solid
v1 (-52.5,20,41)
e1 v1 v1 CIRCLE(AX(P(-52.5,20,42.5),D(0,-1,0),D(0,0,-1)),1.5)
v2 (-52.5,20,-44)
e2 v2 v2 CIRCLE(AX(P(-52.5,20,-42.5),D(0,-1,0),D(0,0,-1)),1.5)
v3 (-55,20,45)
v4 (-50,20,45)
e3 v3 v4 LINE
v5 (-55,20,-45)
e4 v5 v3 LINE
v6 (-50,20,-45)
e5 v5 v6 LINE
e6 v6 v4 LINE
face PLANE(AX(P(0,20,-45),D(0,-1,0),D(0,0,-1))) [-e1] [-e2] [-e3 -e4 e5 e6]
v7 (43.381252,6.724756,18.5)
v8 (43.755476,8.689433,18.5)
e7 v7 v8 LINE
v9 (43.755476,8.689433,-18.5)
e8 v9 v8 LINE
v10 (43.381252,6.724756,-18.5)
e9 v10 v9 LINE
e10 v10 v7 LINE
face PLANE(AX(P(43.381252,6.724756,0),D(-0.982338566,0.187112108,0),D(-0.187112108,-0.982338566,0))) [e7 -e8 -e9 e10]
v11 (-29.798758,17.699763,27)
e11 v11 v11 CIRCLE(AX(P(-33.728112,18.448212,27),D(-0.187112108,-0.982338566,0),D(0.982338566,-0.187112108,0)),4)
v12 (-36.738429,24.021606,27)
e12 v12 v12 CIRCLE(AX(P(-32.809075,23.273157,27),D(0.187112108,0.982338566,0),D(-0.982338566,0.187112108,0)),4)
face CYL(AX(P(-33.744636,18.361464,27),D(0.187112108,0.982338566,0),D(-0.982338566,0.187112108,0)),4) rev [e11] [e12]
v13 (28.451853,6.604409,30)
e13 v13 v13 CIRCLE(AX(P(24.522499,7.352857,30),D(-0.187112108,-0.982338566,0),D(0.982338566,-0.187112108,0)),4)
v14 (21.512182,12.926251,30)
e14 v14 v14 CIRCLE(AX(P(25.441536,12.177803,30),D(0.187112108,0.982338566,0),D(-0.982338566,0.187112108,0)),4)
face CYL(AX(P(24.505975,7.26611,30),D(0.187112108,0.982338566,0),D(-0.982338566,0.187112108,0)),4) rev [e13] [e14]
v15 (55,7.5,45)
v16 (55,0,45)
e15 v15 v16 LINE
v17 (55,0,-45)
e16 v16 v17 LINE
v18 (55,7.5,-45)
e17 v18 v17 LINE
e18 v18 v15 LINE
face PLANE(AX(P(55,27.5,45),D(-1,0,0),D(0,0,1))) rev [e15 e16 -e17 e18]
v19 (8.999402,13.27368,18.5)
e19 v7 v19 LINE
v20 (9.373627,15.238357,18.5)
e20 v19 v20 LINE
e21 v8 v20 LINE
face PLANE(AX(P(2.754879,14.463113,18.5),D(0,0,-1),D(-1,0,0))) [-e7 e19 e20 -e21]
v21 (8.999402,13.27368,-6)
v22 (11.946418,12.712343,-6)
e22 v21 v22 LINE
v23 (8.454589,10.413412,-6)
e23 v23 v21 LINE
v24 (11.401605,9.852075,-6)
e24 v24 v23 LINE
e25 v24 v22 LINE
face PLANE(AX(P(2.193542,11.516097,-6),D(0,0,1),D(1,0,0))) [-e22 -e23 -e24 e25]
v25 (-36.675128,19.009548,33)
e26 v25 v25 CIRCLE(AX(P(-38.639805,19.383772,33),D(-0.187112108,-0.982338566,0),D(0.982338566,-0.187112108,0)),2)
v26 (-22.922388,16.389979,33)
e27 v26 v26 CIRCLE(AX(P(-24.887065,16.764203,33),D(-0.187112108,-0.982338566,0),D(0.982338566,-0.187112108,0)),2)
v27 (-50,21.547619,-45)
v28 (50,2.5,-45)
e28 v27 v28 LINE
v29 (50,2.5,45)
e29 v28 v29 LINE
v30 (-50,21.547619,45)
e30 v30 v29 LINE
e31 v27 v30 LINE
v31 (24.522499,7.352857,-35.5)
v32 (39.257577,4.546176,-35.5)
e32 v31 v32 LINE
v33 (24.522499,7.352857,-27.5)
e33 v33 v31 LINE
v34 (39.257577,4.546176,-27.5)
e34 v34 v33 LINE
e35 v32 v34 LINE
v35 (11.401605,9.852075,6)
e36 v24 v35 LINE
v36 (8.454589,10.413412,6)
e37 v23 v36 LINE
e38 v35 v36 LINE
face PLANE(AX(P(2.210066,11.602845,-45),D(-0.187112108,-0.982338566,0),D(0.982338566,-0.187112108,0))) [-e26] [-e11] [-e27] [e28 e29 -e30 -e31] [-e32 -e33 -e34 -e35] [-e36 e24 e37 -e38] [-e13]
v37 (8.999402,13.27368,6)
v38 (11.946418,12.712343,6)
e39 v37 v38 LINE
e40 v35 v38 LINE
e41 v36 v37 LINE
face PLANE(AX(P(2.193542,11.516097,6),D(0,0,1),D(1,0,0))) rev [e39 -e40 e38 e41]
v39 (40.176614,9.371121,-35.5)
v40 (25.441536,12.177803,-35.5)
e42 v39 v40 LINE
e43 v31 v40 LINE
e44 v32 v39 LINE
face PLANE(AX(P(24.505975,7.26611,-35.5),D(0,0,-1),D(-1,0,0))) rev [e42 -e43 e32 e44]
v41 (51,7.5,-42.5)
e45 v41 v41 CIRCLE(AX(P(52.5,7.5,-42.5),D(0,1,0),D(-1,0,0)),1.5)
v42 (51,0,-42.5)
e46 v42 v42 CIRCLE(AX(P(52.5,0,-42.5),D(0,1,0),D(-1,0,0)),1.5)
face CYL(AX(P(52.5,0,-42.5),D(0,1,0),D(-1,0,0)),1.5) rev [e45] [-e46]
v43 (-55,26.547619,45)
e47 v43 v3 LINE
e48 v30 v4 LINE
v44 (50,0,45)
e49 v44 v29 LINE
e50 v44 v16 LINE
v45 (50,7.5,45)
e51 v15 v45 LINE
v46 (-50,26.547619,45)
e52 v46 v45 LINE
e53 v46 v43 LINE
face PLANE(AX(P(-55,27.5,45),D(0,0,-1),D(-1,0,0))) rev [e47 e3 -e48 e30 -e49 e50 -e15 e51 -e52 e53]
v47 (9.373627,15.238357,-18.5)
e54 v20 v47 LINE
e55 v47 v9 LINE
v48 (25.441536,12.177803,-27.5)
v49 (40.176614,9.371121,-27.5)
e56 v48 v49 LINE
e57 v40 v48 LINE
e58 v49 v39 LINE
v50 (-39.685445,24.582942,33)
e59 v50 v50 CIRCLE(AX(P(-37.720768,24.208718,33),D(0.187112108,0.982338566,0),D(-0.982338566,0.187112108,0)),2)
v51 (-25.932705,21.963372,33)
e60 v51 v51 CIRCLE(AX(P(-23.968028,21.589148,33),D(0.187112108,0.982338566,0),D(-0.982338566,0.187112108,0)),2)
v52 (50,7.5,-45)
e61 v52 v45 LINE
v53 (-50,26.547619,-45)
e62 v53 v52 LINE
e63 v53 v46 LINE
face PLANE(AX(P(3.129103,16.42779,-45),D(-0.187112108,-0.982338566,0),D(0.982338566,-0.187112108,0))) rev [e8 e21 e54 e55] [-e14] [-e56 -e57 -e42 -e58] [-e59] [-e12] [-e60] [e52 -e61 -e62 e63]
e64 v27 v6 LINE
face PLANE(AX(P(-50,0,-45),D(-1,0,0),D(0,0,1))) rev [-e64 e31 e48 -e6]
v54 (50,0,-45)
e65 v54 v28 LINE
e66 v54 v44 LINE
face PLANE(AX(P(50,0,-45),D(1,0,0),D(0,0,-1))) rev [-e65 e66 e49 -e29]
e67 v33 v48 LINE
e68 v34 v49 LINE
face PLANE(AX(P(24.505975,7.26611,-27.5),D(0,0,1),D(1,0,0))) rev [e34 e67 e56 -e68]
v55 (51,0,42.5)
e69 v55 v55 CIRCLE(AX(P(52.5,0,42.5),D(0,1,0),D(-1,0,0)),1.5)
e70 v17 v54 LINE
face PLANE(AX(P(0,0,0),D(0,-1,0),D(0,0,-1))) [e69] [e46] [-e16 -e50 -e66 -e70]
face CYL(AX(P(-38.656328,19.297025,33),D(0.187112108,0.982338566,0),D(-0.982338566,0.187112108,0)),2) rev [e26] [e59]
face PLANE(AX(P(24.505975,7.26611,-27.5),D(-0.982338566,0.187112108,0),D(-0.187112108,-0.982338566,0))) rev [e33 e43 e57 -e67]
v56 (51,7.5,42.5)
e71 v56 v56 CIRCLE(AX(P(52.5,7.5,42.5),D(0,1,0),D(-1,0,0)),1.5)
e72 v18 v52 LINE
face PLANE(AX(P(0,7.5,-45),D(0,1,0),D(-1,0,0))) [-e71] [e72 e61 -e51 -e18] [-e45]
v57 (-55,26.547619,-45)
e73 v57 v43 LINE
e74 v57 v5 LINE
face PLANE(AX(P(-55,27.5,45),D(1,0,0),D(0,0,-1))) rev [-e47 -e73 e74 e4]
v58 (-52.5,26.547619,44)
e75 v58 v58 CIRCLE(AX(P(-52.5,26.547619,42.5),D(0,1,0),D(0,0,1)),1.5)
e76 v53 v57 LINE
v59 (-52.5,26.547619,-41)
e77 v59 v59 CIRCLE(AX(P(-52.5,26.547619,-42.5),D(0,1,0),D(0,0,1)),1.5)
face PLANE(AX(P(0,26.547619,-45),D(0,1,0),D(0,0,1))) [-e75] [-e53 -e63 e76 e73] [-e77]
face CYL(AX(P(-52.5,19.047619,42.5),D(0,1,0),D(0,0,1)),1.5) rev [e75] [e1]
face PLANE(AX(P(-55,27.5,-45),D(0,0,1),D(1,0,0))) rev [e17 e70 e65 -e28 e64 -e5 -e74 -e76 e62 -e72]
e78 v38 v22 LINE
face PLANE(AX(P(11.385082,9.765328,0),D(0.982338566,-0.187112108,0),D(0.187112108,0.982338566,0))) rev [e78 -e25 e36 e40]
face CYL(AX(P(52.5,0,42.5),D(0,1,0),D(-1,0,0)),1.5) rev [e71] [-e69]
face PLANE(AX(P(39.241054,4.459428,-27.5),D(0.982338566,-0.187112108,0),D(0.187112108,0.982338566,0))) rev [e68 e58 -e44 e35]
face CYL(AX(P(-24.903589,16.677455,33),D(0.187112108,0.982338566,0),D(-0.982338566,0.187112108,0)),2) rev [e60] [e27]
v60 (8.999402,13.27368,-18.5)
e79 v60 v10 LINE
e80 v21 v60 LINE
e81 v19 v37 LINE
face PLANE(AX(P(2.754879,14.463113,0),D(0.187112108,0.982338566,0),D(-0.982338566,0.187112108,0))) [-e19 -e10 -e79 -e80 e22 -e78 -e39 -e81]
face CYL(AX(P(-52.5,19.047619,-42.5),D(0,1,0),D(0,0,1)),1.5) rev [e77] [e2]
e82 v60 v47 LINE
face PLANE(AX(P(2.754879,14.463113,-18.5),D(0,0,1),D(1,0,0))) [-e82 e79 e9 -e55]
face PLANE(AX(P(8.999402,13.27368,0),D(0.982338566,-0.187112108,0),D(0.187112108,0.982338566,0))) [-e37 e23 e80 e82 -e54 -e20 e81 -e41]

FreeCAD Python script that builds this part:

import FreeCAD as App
import Part
import Sketcher


def add_polygon(sketch, points):
    """Adds a closed chain of lines whose ends are joined by coincident constraints."""
    first, n = sketch.GeometryCount, len(points)
    for a, b in zip(points, points[1:] + points[:1]):
        sketch.addGeometry(Part.LineSegment(App.Vector(*a, 0), App.Vector(*b, 0)), False)
    for i in range(n):
        sketch.addConstraint(Sketcher.Constraint("Coincident", first + i, 2, first + (i + 1) % n, 1))

doc = App.newDocument("Part")
params = doc.addObject("Spreadsheet::Sheet", "Params")
for row, (alias, value) in enumerate([
    ("sketch1_width", "110 mm"),
    ("sketch1_height", "90 mm"),
    ("pad1_length", "27.5 mm"),
    ("sketch2_width", "5 mm"),
    ("sketch2_width2", "105 mm"),
    ("sketch2_height", "20 mm"),
    ("sketch2_height2", "2.5 mm"),
    ("pocket1_length", "90 mm"),
    ("sketch3_diameter", "3 mm"),
    ("pocket2_length", "7.5 mm"),
    ("sketch4_diameter", "3 mm"),
    ("pocket3_length", "7.5 mm"),
    ("sketch5_diameter", "3 mm"),
    ("pocket4_length", "7.5 mm"),
    ("sketch6_diameter", "3 mm"),
    ("pocket5_length", "7.5 mm"),
    ("sketch7_width", "3 mm"),
    ("sketch7_width2", "35 mm"),
    ("sketch7_height", "37 mm"),
    ("sketch7_height2", "12 mm"),
    ("pocket6_length", "2 mm"),
    ("sketch8_width", "3 mm"),
    ("sketch8_height", "12 mm"),
    ("pocket7_length", "5 mm"),
    ("sketch9_diameter", "4 mm"),
    ("sketch9_diameter2", "8 mm"),
    ("pocket8_length", "5 mm"),
    ("sketch10_diameter", "8 mm"),
    ("pocket9_length", "5 mm"),
    ("sketch11_width", "15 mm"),
    ("sketch11_height", "8 mm"),
    ("pocket10_length", "5 mm"),
], start=1):
    params.set(f"A{row}", alias)
    params.set(f"B{row}", "=" + value)
    params.setAlias(f"B{row}", alias)

body = doc.addObject("PartDesign::Body", "Body")

sketch1 = doc.addObject("Sketcher::SketchObject", "Sketch")
body.addObject(sketch1)
sketch1.AttachmentSupport = (doc.XZ_Plane, [""])
sketch1.MapMode = "FlatFace"
add_polygon(sketch1, [(-55, -45), (-55, 45), (55, 45), (55, -45)])
sketch1.addConstraint(Sketcher.Constraint("Vertical", 0))
sketch1.addConstraint(Sketcher.Constraint("Horizontal", 1))
sketch1.addConstraint(Sketcher.Constraint("Vertical", 2))
sketch1.addConstraint(Sketcher.Constraint("Horizontal", 3))
sketch1.addConstraint(Sketcher.Constraint("Symmetric", 0, 2, 2, 2, -1, 1))
sketch1.addConstraint(Sketcher.Constraint("DistanceX", 1, 1, 1, 2, 110.0))
sketch1.addConstraint(Sketcher.Constraint("DistanceY", 0, 1, 0, 2, 90.0))
sketch1.setExpression("Constraints[9]", "Params.sketch1_width")
sketch1.setExpression("Constraints[10]", "Params.sketch1_height")
pad1 = doc.addObject("PartDesign::Pad", "Pad")
body.addObject(pad1)
pad1.Profile = sketch1
pad1.setExpression("Length", "Params.pad1_length")
pad1.Reversed = True

sketch2 = doc.addObject("Sketcher::SketchObject", "Sketch001")
body.addObject(sketch2)
sketch2.AttachmentSupport = (doc.XY_Plane, [""])
sketch2.MapMode = "FlatFace"
sketch2.AttachmentOffset = App.Placement(App.Vector(0, 0, 45), App.Rotation())
add_polygon(sketch2, [(50, 2.5), (-50, 21.5), (-50, 20), (-55, 20), (-55, 0), (50, 0)])
add_polygon(sketch2, [(-50, 26.5), (50, 7.5), (55, 7.5), (55, 27.5), (-55, 27.5), (-55, 26.5)])
sketch2.addConstraint(Sketcher.Constraint("Vertical", 1))
sketch2.addConstraint(Sketcher.Constraint("Horizontal", 2))
sketch2.addConstraint(Sketcher.Constraint("Vertical", 3))
sketch2.addConstraint(Sketcher.Constraint("Horizontal", 4))
sketch2.addConstraint(Sketcher.Constraint("Vertical", 5))
sketch2.addConstraint(Sketcher.Constraint("Horizontal", 7))
sketch2.addConstraint(Sketcher.Constraint("Vertical", 8))
sketch2.addConstraint(Sketcher.Constraint("Horizontal", 9))
sketch2.addConstraint(Sketcher.Constraint("Vertical", 10))
sketch2.addConstraint(Sketcher.Constraint("Horizontal", 11))
sketch2.addConstraint(Sketcher.Constraint("PointOnObject", 3, 2, -1))
sketch2.addConstraint(Sketcher.Constraint("Parallel", 0, 6))
sketch2.addConstraint(Sketcher.Constraint("Vertical", 5, 2, 6, 2))
sketch2.addConstraint(Sketcher.Constraint("Vertical", 3, 2, 9, 2))
sketch2.addConstraint(Sketcher.Constraint("Vertical", 1, 2, 11, 2))
sketch2.addConstraint(Sketcher.Constraint("Equal", 2, 7))
sketch2.addConstraint(Sketcher.Constraint("Equal", 3, 8))
sketch2.addConstraint(Sketcher.Constraint("DistanceX", 2, 2, 2, 1, 5.0))
sketch2.addConstraint(Sketcher.Constraint("DistanceX", 4, 1, 4, 2, 105.0))
sketch2.addConstraint(Sketcher.Constraint("DistanceY", 3, 2, 3, 1, 20.0))
sketch2.addConstraint(Sketcher.Constraint("DistanceY", 5, 1, 5, 2, 2.5))
sketch2.addConstraint(Sketcher.Constraint("DistanceX", 0, 2, -1, 1, 50.0))
sketch2.addConstraint(Sketcher.Constraint("DistanceY", 5, 2, 6, 2, 5.0))
sketch2.addConstraint(Sketcher.Constraint("DistanceY", 1, 2, 1, 1, 1.547619))
sketch2.setExpression("Constraints[29]", "Params.sketch2_width")
sketch2.setExpression("Constraints[30]", "Params.sketch2_width2")
sketch2.setExpression("Constraints[31]", "Params.sketch2_height")
sketch2.setExpression("Constraints[32]", "Params.sketch2_height2")
pocket1 = doc.addObject("PartDesign::Pocket", "Pocket")
body.addObject(pocket1)
pocket1.Profile = sketch2
pocket1.setExpression("Length", "Params.pocket1_length")

sketch3 = doc.addObject("Sketcher::SketchObject", "Sketch002")
body.addObject(sketch3)
sketch3.AttachmentSupport = (doc.XZ_Plane, [""])
sketch3.MapMode = "FlatFace"
sketch3.AttachmentOffset = App.Placement(App.Vector(0, 0, -7.5), App.Rotation())
sketch3.addGeometry(Part.Circle(App.Vector(52.5, -42.5, 0), App.Vector(0, 0, 1), 1.5), False)
sketch3.addConstraint(Sketcher.Constraint("Diameter", 0, 3.0))
sketch3.addConstraint(Sketcher.Constraint("DistanceX", -1, 1, 0, 3, 52.5))
sketch3.addConstraint(Sketcher.Constraint("DistanceY", 0, 3, -1, 1, 42.5))
sketch3.setExpression("Constraints[0]", "Params.sketch3_diameter")
pocket2 = doc.addObject("PartDesign::Pocket", "Pocket001")
body.addObject(pocket2)
pocket2.Profile = sketch3
pocket2.setExpression("Length", "Params.pocket2_length")
pocket2.Reversed = True

sketch4 = doc.addObject("Sketcher::SketchObject", "Sketch003")
body.addObject(sketch4)
sketch4.AttachmentSupport = (doc.XZ_Plane, [""])
sketch4.MapMode = "FlatFace"
sketch4.AttachmentOffset = App.Placement(App.Vector(0, 0, -7.5), App.Rotation())
sketch4.addGeometry(Part.Circle(App.Vector(52.5, 42.5, 0), App.Vector(0, 0, 1), 1.5), False)
sketch4.addConstraint(Sketcher.Constraint("Diameter", 0, 3.0))
sketch4.addConstraint(Sketcher.Constraint("DistanceX", -1, 1, 0, 3, 52.5))
sketch4.addConstraint(Sketcher.Constraint("DistanceY", -1, 1, 0, 3, 42.5))
sketch4.setExpression("Constraints[0]", "Params.sketch4_diameter")
pocket3 = doc.addObject("PartDesign::Pocket", "Pocket002")
body.addObject(pocket3)
pocket3.Profile = sketch4
pocket3.setExpression("Length", "Params.pocket3_length")
pocket3.Reversed = True

sketch5 = doc.addObject("Sketcher::SketchObject", "Sketch004")
body.addObject(sketch5)
sketch5.AttachmentSupport = (doc.XZ_Plane, [""])
sketch5.MapMode = "FlatFace"
sketch5.AttachmentOffset = App.Placement(App.Vector(0, 0, -26.547619), App.Rotation())
sketch5.addGeometry(Part.Circle(App.Vector(-52.5, -42.5, 0), App.Vector(0, 0, 1), 1.5), False)
sketch5.addConstraint(Sketcher.Constraint("Diameter", 0, 3.0))
sketch5.addConstraint(Sketcher.Constraint("DistanceX", 0, 3, -1, 1, 52.5))
sketch5.addConstraint(Sketcher.Constraint("DistanceY", 0, 3, -1, 1, 42.5))
sketch5.setExpression("Constraints[0]", "Params.sketch5_diameter")
pocket4 = doc.addObject("PartDesign::Pocket", "Pocket003")
body.addObject(pocket4)
pocket4.Profile = sketch5
pocket4.setExpression("Length", "Params.pocket4_length")
pocket4.Reversed = True

sketch6 = doc.addObject("Sketcher::SketchObject", "Sketch005")
body.addObject(sketch6)
sketch6.AttachmentSupport = (doc.XZ_Plane, [""])
sketch6.MapMode = "FlatFace"
sketch6.AttachmentOffset = App.Placement(App.Vector(0, 0, -26.547619), App.Rotation())
sketch6.addGeometry(Part.Circle(App.Vector(-52.5, 42.5, 0), App.Vector(0, 0, 1), 1.5), False)
sketch6.addConstraint(Sketcher.Constraint("Diameter", 0, 3.0))
sketch6.addConstraint(Sketcher.Constraint("DistanceX", 0, 3, -1, 1, 52.5))
sketch6.addConstraint(Sketcher.Constraint("DistanceY", -1, 1, 0, 3, 42.5))
sketch6.setExpression("Constraints[0]", "Params.sketch6_diameter")
pocket5 = doc.addObject("PartDesign::Pocket", "Pocket004")
body.addObject(pocket5)
pocket5.Profile = sketch6
pocket5.setExpression("Length", "Params.pocket5_length")
pocket5.Reversed = True

sketch7 = doc.addObject("Sketcher::SketchObject", "Sketch006")
body.addObject(sketch7)
sketch7.Placement = App.Placement(App.Vector(3.129103, 16.42779, 0), App.Rotation(App.Vector(0.982338566, -0.187112108, 0), App.Vector(0, 0, -0.999999999), App.Vector(0.187112108, 0.982338566, 0), "ZXY"))
add_polygon(sketch7, [(9.4, -6), (6.4, -6), (6.4, -18.5), (41.4, -18.5), (41.4, 18.5), (6.4, 18.5), (6.4, 6), (9.4, 6)])
sketch7.addConstraint(Sketcher.Constraint("Horizontal", 0))
sketch7.addConstraint(Sketcher.Constraint("Vertical", 1))
sketch7.addConstraint(Sketcher.Constraint("Horizontal", 2))
sketch7.addConstraint(Sketcher.Constraint("Vertical", 3))
sketch7.addConstraint(Sketcher.Constraint("Horizontal", 4))
sketch7.addConstraint(Sketcher.Constraint("Vertical", 5))
sketch7.addConstraint(Sketcher.Constraint("Horizontal", 6))
sketch7.addConstraint(Sketcher.Constraint("Vertical", 7))
sketch7.addConstraint(Sketcher.Constraint("Symmetric", 1, 2, 4, 2, -1))
sketch7.addConstraint(Sketcher.Constraint("Equal", 1, 5))
sketch7.addConstraint(Sketcher.Constraint("DistanceX", 0, 2, 0, 1, 3.0))
sketch7.addConstraint(Sketcher.Constraint("DistanceX", 2, 1, 2, 2, 35.0))
sketch7.addConstraint(Sketcher.Constraint("DistanceY", 3, 1, 3, 2, 37.0))
sketch7.addConstraint(Sketcher.Constraint("DistanceY", 7, 2, 7, 1, 12.0))
sketch7.addConstraint(Sketcher.Constraint("DistanceX", -1, 1, 0, 2, 6.356794))
sketch7.setExpression("Constraints[18]", "Params.sketch7_width")
sketch7.setExpression("Constraints[19]", "Params.sketch7_width2")
sketch7.setExpression("Constraints[20]", "Params.sketch7_height")
sketch7.setExpression("Constraints[21]", "Params.sketch7_height2")
pocket6 = doc.addObject("PartDesign::Pocket", "Pocket005")
body.addObject(pocket6)
pocket6.Profile = sketch7
pocket6.setExpression("Length", "Params.pocket6_length")

sketch8 = doc.addObject("Sketcher::SketchObject", "Sketch007")
body.addObject(sketch8)
sketch8.Placement = App.Placement(App.Vector(3.129103, 16.42779, 0), App.Rotation(App.Vector(0.982338566, -0.187112108, 0), App.Vector(0, 0, -0.999999999), App.Vector(0.187112108, 0.982338566, 0), "ZXY"))
add_polygon(sketch8, [(6.4, 6), (6.4, -6), (9.4, -6), (9.4, 6)])
sketch8.addConstraint(Sketcher.Constraint("Vertical", 0))
sketch8.addConstraint(Sketcher.Constraint("Horizontal", 1))
sketch8.addConstraint(Sketcher.Constraint("Vertical", 2))
sketch8.addConstraint(Sketcher.Constraint("Horizontal", 3))
sketch8.addConstraint(Sketcher.Constraint("DistanceX", 1, 1, 1, 2, 3.0))
sketch8.addConstraint(Sketcher.Constraint("DistanceY", 0, 2, 0, 1, 12.0))
sketch8.addConstraint(Sketcher.Constraint("DistanceY", 0, 2, -1, 1, 6.0))
sketch8.addConstraint(Sketcher.Constraint("DistanceX", -1, 1, 0, 2, 6.356794))
sketch8.setExpression("Constraints[8]", "Params.sketch8_width")
sketch8.setExpression("Constraints[9]", "Params.sketch8_height")
pocket7 = doc.addObject("PartDesign::Pocket", "Pocket006")
body.addObject(pocket7)
pocket7.Profile = sketch8
pocket7.setExpression("Length", "Params.pocket7_length")

sketch9 = doc.addObject("Sketcher::SketchObject", "Sketch008")
body.addObject(sketch9)
sketch9.Placement = App.Placement(App.Vector(3.129103, 16.42779, 0), App.Rotation(App.Vector(0.982338566, -0.187112108, 0), App.Vector(0, 0, -0.999999999), App.Vector(0.187112108, 0.982338566, 0), "ZXY"))
sketch9.addGeometry(Part.Circle(App.Vector(-41.6, -33, 0), App.Vector(0, 0, 1), 2), False)
sketch9.addGeometry(Part.Circle(App.Vector(-27.6, -33, 0), App.Vector(0, 0, 1), 2), False)
sketch9.addGeometry(Part.Circle(App.Vector(-36.6, -27, 0), App.Vector(0, 0, 1), 4), False)
sketch9.addConstraint(Sketcher.Constraint("Equal", 0, 1))
sketch9.addConstraint(Sketcher.Constraint("Horizontal", 0, 3, 1, 3))
sketch9.addConstraint(Sketcher.Constraint("Diameter", 0, 4.0))
sketch9.addConstraint(Sketcher.Constraint("Diameter", 2, 8.0))
sketch9.addConstraint(Sketcher.Constraint("DistanceY", 0, 3, -1, 1, 33.0))
sketch9.addConstraint(Sketcher.Constraint("DistanceY", 2, 3, -1, 1, 27.0))
sketch9.addConstraint(Sketcher.Constraint("DistanceX", 0, 3, 1, 3, 14.0))
sketch9.addConstraint(Sketcher.Constraint("DistanceX", 0, 3, 2, 3, 5.0))
sketch9.addConstraint(Sketcher.Constraint("DistanceX", 0, 3, -1, 1, 41.584309))
sketch9.setExpression("Constraints[2]", "Params.sketch9_diameter")
sketch9.setExpression("Constraints[3]", "Params.sketch9_diameter2")
pocket8 = doc.addObject("PartDesign::Pocket", "Pocket007")
body.addObject(pocket8)
pocket8.Profile = sketch9
pocket8.setExpression("Length", "Params.pocket8_length")

sketch10 = doc.addObject("Sketcher::SketchObject", "Sketch009")
body.addObject(sketch10)
sketch10.Placement = App.Placement(App.Vector(3.129103, 16.42779, 0), App.Rotation(App.Vector(0.982338566, -0.187112108, 0), App.Vector(0, 0, -0.999999999), App.Vector(0.187112108, 0.982338566, 0), "ZXY"))
sketch10.addGeometry(Part.Circle(App.Vector(22.7, -30, 0), App.Vector(0, 0, 1), 4), False)
sketch10.addConstraint(Sketcher.Constraint("Diameter", 0, 8.0))
sketch10.addConstraint(Sketcher.Constraint("DistanceY", 0, 3, -1, 1, 30.0))
sketch10.addConstraint(Sketcher.Constraint("DistanceX", -1, 1, 0, 3, 22.713587))
sketch10.setExpression("Constraints[0]", "Params.sketch10_diameter")
pocket9 = doc.addObject("PartDesign::Pocket", "Pocket008")
body.addObject(pocket9)
pocket9.Profile = sketch10
pocket9.setExpression("Length", "Params.pocket9_length")

sketch11 = doc.addObject("Sketcher::SketchObject", "Sketch010")
body.addObject(sketch11)
sketch11.Placement = App.Placement(App.Vector(3.129103, 16.42779, 0), App.Rotation(App.Vector(0.982338566, -0.187112108, 0), App.Vector(0, 0, -0.999999999), App.Vector(0.187112108, 0.982338566, 0), "ZXY"))
add_polygon(sketch11, [(23, 35), (23, 27), (38, 27), (38, 35)])
sketch11.addConstraint(Sketcher.Constraint("Vertical", 0))
sketch11.addConstraint(Sketcher.Constraint("Horizontal", 1))
sketch11.addConstraint(Sketcher.Constraint("Vertical", 2))
sketch11.addConstraint(Sketcher.Constraint("Horizontal", 3))
sketch11.addConstraint(Sketcher.Constraint("DistanceX", 1, 1, 1, 2, 15.0))
sketch11.addConstraint(Sketcher.Constraint("DistanceY", 0, 2, 0, 1, 8.0))
sketch11.addConstraint(Sketcher.Constraint("DistanceY", -1, 1, 0, 2, 27.5))
sketch11.addConstraint(Sketcher.Constraint("DistanceX", -1, 1, 0, 2, 22.713587))
sketch11.setExpression("Constraints[8]", "Params.sketch11_width")
sketch11.setExpression("Constraints[9]", "Params.sketch11_height")
pocket10 = doc.addObject("PartDesign::Pocket", "Pocket009")
body.addObject(pocket10)
pocket10.Profile = sketch11
pocket10.setExpression("Length", "Params.pocket10_length")

doc.recompute()
